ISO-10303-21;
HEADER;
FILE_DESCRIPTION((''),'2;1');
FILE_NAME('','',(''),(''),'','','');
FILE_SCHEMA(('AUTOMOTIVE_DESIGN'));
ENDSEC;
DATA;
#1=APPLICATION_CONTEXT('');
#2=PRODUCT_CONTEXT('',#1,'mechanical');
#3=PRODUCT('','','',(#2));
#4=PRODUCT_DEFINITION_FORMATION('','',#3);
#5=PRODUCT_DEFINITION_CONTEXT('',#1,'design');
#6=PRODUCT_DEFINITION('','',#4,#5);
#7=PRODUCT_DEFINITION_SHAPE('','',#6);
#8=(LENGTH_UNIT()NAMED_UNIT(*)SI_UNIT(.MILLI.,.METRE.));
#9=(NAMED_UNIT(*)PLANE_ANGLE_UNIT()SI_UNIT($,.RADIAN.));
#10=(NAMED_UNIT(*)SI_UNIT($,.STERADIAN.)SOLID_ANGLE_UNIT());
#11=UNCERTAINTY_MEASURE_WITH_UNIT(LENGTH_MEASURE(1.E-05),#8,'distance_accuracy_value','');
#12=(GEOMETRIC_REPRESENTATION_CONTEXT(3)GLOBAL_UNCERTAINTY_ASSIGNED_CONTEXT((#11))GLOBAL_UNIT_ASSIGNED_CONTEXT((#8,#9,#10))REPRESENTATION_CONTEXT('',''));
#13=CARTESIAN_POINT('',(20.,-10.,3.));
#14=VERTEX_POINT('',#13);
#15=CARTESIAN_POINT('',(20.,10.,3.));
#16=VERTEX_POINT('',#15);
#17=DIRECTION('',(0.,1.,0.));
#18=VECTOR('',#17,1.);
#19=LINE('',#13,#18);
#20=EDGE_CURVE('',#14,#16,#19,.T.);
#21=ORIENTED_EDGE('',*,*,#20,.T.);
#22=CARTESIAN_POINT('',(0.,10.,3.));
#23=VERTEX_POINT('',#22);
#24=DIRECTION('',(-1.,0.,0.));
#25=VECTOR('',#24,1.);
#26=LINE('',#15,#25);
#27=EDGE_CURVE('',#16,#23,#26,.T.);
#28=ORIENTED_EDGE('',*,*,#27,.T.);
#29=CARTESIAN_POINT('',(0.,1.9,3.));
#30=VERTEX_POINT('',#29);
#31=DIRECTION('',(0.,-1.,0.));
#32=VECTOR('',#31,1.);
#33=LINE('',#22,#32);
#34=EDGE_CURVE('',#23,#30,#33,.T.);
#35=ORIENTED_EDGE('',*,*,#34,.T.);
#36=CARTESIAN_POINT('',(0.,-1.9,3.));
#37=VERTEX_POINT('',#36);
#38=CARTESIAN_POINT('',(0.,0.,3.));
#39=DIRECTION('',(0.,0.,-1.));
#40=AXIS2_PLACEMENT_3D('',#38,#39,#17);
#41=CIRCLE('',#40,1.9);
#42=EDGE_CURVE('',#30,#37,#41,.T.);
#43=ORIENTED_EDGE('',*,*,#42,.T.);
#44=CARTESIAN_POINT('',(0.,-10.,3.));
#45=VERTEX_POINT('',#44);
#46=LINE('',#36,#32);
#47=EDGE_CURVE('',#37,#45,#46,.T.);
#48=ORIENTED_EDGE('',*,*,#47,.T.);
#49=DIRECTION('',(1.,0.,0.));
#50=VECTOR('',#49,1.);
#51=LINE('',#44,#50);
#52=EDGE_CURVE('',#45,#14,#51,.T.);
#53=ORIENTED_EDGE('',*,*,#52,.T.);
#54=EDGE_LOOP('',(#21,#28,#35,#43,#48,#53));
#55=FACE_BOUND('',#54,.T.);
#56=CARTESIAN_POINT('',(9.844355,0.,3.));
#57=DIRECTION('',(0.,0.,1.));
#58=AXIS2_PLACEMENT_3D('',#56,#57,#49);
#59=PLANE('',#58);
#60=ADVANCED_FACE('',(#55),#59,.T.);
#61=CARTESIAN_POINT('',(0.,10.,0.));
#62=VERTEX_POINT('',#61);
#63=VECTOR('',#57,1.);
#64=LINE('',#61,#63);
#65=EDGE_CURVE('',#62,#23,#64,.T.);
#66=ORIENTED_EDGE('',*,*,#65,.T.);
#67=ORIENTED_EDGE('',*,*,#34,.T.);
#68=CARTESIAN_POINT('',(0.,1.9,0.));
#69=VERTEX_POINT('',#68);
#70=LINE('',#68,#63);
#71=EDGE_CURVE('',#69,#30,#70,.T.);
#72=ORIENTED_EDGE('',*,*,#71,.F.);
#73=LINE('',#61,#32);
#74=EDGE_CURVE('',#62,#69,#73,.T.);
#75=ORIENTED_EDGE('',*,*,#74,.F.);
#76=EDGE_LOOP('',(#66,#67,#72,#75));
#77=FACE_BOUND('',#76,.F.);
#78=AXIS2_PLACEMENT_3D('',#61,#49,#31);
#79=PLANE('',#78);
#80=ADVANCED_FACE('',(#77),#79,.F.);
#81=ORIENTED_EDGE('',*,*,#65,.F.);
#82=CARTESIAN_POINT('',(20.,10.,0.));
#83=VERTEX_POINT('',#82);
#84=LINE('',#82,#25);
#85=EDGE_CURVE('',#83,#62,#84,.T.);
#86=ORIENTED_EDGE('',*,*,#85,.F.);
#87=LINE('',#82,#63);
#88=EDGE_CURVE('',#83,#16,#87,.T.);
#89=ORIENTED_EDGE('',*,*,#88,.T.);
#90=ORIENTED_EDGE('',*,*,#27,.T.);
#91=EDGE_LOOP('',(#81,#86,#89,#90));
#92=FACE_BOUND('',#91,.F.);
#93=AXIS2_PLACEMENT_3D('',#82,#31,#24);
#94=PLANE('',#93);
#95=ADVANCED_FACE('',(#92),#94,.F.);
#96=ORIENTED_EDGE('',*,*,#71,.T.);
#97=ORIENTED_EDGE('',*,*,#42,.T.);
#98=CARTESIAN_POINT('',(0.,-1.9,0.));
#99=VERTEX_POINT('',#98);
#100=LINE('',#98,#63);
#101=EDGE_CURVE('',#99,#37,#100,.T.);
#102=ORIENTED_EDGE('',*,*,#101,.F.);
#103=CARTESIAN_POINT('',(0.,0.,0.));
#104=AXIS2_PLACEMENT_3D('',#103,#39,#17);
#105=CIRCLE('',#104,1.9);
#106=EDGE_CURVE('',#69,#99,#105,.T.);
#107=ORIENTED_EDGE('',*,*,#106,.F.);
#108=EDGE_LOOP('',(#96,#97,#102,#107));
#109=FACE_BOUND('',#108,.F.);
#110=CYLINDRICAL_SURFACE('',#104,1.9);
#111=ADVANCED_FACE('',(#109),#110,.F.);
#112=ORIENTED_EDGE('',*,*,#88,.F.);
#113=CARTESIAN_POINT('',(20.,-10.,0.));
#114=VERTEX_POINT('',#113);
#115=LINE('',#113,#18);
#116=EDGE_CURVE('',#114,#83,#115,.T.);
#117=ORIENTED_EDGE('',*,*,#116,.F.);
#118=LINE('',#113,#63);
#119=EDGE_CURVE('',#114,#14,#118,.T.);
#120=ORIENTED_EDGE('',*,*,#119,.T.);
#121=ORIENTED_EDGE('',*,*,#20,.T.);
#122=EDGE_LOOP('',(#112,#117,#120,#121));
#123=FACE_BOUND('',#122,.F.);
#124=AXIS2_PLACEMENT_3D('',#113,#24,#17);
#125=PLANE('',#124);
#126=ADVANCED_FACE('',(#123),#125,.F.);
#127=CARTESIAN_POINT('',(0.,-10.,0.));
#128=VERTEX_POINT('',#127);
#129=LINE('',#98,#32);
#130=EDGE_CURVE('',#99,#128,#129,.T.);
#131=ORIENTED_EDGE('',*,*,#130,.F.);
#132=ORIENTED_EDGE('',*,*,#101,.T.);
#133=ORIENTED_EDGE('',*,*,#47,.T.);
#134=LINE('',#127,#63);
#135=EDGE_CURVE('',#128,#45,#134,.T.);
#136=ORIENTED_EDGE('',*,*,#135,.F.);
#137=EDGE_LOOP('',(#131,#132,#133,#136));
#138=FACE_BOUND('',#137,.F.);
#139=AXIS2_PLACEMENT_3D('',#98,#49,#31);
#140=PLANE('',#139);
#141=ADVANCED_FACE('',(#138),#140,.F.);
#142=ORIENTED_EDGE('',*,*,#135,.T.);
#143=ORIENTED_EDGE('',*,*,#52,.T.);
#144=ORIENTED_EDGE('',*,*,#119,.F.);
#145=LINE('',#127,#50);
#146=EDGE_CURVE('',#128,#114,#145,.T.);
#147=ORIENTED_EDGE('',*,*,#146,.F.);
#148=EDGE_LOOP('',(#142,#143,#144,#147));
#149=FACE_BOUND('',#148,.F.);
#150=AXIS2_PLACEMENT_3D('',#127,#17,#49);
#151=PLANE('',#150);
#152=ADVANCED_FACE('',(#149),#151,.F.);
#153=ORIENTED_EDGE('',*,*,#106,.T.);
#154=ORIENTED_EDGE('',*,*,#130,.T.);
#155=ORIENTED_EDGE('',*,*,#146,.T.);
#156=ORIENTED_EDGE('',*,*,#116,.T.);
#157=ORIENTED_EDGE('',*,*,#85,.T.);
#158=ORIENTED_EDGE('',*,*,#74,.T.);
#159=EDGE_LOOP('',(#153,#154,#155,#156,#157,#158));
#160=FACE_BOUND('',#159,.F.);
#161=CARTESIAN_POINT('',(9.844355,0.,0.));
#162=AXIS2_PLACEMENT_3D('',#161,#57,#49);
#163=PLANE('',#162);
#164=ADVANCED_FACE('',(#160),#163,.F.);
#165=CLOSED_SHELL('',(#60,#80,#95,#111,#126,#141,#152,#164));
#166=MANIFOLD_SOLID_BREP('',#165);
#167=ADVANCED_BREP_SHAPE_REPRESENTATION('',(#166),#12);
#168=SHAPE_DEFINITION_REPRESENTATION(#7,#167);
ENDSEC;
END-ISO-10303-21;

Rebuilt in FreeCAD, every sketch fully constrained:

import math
import FreeCAD as App
import Part
import Sketcher

V = App.Vector
Q = App.Units.Quantity

doc = App.newDocument("Part")
body = doc.addObject("PartDesign::Body", "Body")

sketch1 = body.newObject("Sketcher::SketchObject", "Sketch")
sketch1.AttachmentSupport = (doc.getObject("XY_Plane"), [""])
sketch1.MapMode = "FlatFace"
sketch1.addGeometry([
    Part.ArcOfCircle(Part.Circle(V(0, 0, 0), V(0, 0, 1), 1.9), math.radians(-90), math.radians(90)),
    Part.LineSegment(V(0, -1.9, 0), V(0, -10, 0)),
    Part.LineSegment(V(0, -10, 0), V(20, -10, 0)),
    Part.LineSegment(V(20, -10, 0), V(20, 10, 0)),
    Part.LineSegment(V(20, 10, 0), V(0, 10, 0)),
    Part.LineSegment(V(0, 10, 0), V(0, 1.9, 0)),
], False)
sketch1.addConstraint([
    Sketcher.Constraint("Coincident", 0, 1, 1, 1),
    Sketcher.Constraint("Coincident", 1, 2, 2, 1),
    Sketcher.Constraint("Coincident", 2, 2, 3, 1),
    Sketcher.Constraint("Coincident", 3, 2, 4, 1),
    Sketcher.Constraint("Coincident", 4, 2, 5, 1),
    Sketcher.Constraint("Coincident", 5, 2, 0, 2),
    Sketcher.Constraint("Vertical", 1),
    Sketcher.Constraint("Horizontal", 2),
    Sketcher.Constraint("Vertical", 3),
    Sketcher.Constraint("Horizontal", 4),
    Sketcher.Constraint("Vertical", 5),
    Sketcher.Constraint("Coincident", 0, 3, -1, 1),
    Sketcher.Constraint("Symmetric", 1, 2, 4, 2, -1, 1),
    Sketcher.Constraint("PointOnObject", 0, 1, -2),
    Sketcher.Constraint("Equal", 4, 3),
    Sketcher.Constraint("Radius", 0, Q("1.9 mm")),
    Sketcher.Constraint("DistanceX", 2, 1, 2, 2, Q("20 mm")),
])
pad1 = body.newObject("PartDesign::Pad", "Pad")
pad1.Profile = sketch1
pad1.Length = 3

doc.recompute()
